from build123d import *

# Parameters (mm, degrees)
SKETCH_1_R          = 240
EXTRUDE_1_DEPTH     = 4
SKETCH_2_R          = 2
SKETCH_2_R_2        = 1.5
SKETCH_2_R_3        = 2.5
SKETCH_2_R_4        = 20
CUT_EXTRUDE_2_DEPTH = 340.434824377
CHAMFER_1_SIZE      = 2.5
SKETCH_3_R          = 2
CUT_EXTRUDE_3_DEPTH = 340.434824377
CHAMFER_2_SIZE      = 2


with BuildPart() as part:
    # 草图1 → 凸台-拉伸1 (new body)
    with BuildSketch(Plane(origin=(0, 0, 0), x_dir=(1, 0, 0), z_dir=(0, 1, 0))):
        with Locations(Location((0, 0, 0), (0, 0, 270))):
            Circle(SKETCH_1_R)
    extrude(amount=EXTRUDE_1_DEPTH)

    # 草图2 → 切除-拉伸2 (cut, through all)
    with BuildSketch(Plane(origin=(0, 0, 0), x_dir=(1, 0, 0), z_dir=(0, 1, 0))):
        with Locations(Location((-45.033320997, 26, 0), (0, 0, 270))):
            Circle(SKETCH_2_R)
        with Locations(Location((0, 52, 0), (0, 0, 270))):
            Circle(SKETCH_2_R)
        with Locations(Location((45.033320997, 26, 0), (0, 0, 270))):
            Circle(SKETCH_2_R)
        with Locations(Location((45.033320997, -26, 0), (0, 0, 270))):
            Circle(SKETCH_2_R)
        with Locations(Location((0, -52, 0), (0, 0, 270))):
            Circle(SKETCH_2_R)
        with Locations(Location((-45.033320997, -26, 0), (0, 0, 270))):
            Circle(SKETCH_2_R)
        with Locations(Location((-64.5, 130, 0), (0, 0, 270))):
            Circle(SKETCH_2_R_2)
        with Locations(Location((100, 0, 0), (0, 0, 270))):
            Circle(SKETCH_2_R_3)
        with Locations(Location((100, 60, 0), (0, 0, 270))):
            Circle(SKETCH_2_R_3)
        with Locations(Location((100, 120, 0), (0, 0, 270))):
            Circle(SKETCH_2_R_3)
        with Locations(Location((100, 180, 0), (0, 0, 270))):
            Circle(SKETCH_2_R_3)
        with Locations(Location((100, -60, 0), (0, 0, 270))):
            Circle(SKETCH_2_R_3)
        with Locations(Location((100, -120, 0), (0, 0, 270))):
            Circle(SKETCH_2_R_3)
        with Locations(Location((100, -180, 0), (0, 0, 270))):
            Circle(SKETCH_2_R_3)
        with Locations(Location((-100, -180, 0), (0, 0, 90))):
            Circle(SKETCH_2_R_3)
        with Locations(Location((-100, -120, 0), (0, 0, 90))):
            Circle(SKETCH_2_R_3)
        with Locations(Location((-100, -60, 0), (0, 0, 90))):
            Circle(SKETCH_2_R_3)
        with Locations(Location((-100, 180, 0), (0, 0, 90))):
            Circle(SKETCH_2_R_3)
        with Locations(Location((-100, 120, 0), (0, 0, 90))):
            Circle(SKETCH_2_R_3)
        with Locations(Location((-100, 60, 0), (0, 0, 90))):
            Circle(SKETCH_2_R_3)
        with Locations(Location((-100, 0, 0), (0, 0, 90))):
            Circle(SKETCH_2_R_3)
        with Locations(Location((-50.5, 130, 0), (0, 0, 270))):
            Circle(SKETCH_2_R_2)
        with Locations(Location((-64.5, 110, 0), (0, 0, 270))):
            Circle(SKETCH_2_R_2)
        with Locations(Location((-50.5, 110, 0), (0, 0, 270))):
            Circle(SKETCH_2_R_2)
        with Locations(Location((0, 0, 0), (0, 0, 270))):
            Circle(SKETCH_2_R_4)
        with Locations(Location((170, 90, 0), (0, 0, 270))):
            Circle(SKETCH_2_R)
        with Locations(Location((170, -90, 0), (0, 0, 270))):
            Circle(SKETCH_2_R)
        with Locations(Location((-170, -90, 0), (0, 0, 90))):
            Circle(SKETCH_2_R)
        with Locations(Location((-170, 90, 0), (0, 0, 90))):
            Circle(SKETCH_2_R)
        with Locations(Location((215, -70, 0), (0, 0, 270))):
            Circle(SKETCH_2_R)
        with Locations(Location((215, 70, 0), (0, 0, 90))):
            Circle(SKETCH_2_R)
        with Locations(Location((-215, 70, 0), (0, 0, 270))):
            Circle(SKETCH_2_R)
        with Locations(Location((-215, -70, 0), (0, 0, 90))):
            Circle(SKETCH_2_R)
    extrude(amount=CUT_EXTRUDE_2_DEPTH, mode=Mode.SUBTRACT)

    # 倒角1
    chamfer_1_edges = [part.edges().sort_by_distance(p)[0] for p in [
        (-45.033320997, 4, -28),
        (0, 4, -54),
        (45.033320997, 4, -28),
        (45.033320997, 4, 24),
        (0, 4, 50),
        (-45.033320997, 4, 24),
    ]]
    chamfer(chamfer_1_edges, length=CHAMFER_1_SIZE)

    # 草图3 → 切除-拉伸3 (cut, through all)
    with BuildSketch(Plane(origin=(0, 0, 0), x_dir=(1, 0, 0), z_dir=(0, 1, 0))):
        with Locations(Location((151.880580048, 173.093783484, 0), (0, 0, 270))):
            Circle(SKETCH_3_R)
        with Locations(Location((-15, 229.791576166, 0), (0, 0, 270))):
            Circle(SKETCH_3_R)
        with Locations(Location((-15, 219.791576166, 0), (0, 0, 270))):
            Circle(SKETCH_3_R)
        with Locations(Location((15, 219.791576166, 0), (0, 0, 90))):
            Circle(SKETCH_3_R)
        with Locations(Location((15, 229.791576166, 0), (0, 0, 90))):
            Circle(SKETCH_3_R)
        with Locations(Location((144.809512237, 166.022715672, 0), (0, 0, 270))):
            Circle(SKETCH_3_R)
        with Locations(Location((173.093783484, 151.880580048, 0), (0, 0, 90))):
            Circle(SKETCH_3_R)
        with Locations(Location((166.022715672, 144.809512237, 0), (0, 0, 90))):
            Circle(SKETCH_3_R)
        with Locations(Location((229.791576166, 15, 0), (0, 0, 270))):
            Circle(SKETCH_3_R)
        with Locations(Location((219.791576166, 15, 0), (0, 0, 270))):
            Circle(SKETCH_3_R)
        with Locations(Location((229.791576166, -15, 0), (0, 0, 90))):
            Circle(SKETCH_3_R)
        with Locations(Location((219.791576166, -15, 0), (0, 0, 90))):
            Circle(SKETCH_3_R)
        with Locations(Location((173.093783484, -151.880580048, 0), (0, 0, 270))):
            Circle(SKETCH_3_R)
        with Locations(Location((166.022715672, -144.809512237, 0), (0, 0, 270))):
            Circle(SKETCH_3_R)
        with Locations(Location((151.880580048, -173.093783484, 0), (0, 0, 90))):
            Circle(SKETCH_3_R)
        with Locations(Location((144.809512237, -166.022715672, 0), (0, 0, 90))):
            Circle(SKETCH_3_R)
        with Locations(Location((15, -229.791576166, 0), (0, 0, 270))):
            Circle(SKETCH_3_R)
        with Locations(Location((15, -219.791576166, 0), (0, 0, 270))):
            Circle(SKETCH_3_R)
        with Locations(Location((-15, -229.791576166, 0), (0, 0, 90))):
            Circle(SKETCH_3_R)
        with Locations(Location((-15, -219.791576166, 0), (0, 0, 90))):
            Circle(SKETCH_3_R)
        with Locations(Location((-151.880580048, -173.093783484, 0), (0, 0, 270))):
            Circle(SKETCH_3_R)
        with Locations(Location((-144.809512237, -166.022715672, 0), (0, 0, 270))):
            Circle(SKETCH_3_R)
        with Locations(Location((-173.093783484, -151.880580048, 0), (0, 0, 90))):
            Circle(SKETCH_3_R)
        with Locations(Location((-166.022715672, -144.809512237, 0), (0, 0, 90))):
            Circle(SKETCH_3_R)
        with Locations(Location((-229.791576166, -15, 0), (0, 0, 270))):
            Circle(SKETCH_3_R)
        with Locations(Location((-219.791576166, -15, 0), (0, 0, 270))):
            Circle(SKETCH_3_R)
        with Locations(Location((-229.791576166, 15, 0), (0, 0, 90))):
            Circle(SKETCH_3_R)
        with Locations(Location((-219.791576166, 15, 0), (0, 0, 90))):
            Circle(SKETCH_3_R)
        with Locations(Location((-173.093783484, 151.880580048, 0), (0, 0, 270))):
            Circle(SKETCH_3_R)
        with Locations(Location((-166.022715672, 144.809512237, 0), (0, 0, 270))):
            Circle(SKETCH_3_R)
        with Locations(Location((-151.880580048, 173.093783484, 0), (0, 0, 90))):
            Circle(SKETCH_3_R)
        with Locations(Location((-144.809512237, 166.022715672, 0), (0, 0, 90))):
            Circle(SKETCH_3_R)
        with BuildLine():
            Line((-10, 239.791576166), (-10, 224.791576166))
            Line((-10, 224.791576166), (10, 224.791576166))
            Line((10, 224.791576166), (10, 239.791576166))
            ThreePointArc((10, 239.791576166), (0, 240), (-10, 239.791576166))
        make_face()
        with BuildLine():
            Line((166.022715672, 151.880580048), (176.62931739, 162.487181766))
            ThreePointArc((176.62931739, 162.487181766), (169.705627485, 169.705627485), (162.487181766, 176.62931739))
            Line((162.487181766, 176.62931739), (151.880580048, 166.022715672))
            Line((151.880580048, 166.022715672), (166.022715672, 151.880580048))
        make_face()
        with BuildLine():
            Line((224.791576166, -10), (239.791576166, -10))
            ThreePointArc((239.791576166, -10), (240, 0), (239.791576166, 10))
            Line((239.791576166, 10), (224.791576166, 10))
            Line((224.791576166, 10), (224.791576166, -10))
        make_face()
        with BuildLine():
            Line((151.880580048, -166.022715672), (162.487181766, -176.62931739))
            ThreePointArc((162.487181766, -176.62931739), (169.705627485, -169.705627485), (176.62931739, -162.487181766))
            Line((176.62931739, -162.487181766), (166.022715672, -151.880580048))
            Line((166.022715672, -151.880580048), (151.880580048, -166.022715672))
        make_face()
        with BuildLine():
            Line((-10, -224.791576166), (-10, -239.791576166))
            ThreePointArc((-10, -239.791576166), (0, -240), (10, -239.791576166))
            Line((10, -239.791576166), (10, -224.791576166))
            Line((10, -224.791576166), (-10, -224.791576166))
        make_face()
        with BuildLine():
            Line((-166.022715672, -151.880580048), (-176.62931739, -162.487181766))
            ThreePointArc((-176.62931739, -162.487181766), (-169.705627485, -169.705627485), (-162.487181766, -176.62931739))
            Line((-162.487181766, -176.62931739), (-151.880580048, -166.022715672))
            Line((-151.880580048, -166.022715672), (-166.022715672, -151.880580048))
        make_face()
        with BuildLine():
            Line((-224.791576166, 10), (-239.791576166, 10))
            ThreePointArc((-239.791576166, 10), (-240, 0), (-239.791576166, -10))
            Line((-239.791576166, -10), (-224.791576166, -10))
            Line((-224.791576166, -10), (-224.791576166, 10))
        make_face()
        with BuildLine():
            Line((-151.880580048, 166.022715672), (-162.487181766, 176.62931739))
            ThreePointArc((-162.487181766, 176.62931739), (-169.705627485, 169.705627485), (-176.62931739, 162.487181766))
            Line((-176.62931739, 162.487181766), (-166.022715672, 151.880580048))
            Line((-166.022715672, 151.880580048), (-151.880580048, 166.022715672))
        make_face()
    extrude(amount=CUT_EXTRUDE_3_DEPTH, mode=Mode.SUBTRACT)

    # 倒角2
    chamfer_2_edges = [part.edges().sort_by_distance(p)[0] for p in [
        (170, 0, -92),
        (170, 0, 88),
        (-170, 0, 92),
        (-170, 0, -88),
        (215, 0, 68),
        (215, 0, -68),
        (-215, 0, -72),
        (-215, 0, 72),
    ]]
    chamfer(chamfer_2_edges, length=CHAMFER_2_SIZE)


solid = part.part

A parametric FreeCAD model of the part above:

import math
import FreeCAD as App
import Part
import Sketcher
from FreeCAD import Vector


def edges_at(feature, points):
    """Names of the edges that pass closest to the given points."""
    edges = feature.Shape.Edges
    near = lambda p: min(range(len(edges)), key=lambda i: edges[i].distToShape(Part.Vertex(*p))[0])
    return sorted({f"Edge{near(p) + 1}" for p in points})

doc = App.newDocument("Part")
body = doc.addObject("PartDesign::Body", "Body")

# Sketch on XZ plane
sketch1 = body.newObject("Sketcher::SketchObject", "Sketch")
sketch1.AttachmentSupport = (doc.getObject("XZ_Plane"), [""])
sketch1.MapMode = "FlatFace"
sketch1.addGeometry(Part.Circle(Vector(0, 0, 0), Vector(0, 0, 1), 240), False)
sketch1.addConstraint(Sketcher.Constraint("Coincident", 0, 3, -1, 1))
sketch1.addConstraint(Sketcher.Constraint("Diameter", 0, 480.0))
pad1 = body.newObject("PartDesign::Pad", "Pad")
pad1.Profile = sketch1
pad1.Length = 4
pad1.Reversed = True

# Sketch on XZ plane
sketch2 = body.newObject("Sketcher::SketchObject", "Sketch001")
sketch2.AttachmentSupport = (doc.getObject("XZ_Plane"), [""])
sketch2.MapMode = "FlatFace"
sketch2.addGeometry(Part.Circle(Vector(-45, -26, 0), Vector(0, 0, 1), 2), False)
sketch2.addGeometry(Part.Circle(Vector(0, -52, 0), Vector(0, 0, 1), 2), False)
sketch2.addGeometry(Part.Circle(Vector(45, -26, 0), Vector(0, 0, 1), 2), False)
sketch2.addGeometry(Part.Circle(Vector(45, 26, 0), Vector(0, 0, 1), 2), False)
sketch2.addGeometry(Part.Circle(Vector(0, 52, 0), Vector(0, 0, 1), 2), False)
sketch2.addGeometry(Part.Circle(Vector(-45, 26, 0), Vector(0, 0, 1), 2), False)
sketch2.addGeometry(Part.Circle(Vector(-64.5, -130, 0), Vector(0, 0, 1), 1.5), False)
sketch2.addGeometry(Part.Circle(Vector(100, 0, 0), Vector(0, 0, 1), 2.5), False)
sketch2.addGeometry(Part.Circle(Vector(100, -60, 0), Vector(0, 0, 1), 2.5), False)
sketch2.addGeometry(Part.Circle(Vector(100, -120, 0), Vector(0, 0, 1), 2.5), False)
sketch2.addGeometry(Part.Circle(Vector(100, -180, 0), Vector(0, 0, 1), 2.5), False)
sketch2.addGeometry(Part.Circle(Vector(100, 60, 0), Vector(0, 0, 1), 2.5), False)
sketch2.addGeometry(Part.Circle(Vector(100, 120, 0), Vector(0, 0, 1), 2.5), False)
sketch2.addGeometry(Part.Circle(Vector(100, 180, 0), Vector(0, 0, 1), 2.5), False)
sketch2.addGeometry(Part.Circle(Vector(-100, 180, 0), Vector(0, 0, 1), 2.5), False)
sketch2.addGeometry(Part.Circle(Vector(-100, 120, 0), Vector(0, 0, 1), 2.5), False)
sketch2.addGeometry(Part.Circle(Vector(-100, 60, 0), Vector(0, 0, 1), 2.5), False)
sketch2.addGeometry(Part.Circle(Vector(-100, -180, 0), Vector(0, 0, 1), 2.5), False)
sketch2.addGeometry(Part.Circle(Vector(-100, -120, 0), Vector(0, 0, 1), 2.5), False)
sketch2.addGeometry(Part.Circle(Vector(-100, -60, 0), Vector(0, 0, 1), 2.5), False)
sketch2.addGeometry(Part.Circle(Vector(-100, 0, 0), Vector(0, 0, 1), 2.5), False)
sketch2.addGeometry(Part.Circle(Vector(-50.5, -130, 0), Vector(0, 0, 1), 1.5), False)
sketch2.addGeometry(Part.Circle(Vector(-64.5, -110, 0), Vector(0, 0, 1), 1.5), False)
sketch2.addGeometry(Part.Circle(Vector(-50.5, -110, 0), Vector(0, 0, 1), 1.5), False)
sketch2.addGeometry(Part.Circle(Vector(0, 0, 0), Vector(0, 0, 1), 20), False)
sketch2.addGeometry(Part.Circle(Vector(170, -90, 0), Vector(0, 0, 1), 2), False)
sketch2.addGeometry(Part.Circle(Vector(170, 90, 0), Vector(0, 0, 1), 2), False)
sketch2.addGeometry(Part.Circle(Vector(-170, 90, 0), Vector(0, 0, 1), 2), False)
sketch2.addGeometry(Part.Circle(Vector(-170, -90, 0), Vector(0, 0, 1), 2), False)
sketch2.addGeometry(Part.Circle(Vector(215, 70, 0), Vector(0, 0, 1), 2), False)
sketch2.addGeometry(Part.Circle(Vector(215, -70, 0), Vector(0, 0, 1), 2), False)
sketch2.addGeometry(Part.Circle(Vector(-215, -70, 0), Vector(0, 0, 1), 2), False)
sketch2.addGeometry(Part.Circle(Vector(-215, 70, 0), Vector(0, 0, 1), 2), False)
sketch2.addConstraint(Sketcher.Constraint("Coincident", 24, 3, -1, 1))
sketch2.addConstraint(Sketcher.Constraint("Equal", 0, 1))
sketch2.addConstraint(Sketcher.Constraint("Equal", 1, 2))
sketch2.addConstraint(Sketcher.Constraint("Equal", 2, 3))
sketch2.addConstraint(Sketcher.Constraint("Equal", 3, 4))
sketch2.addConstraint(Sketcher.Constraint("Equal", 4, 5))
sketch2.addConstraint(Sketcher.Constraint("Equal", 7, 8))
sketch2.addConstraint(Sketcher.Constraint("Equal", 8, 9))
sketch2.addConstraint(Sketcher.Constraint("Equal", 9, 10))
sketch2.addConstraint(Sketcher.Constraint("Equal", 10, 11))
sketch2.addConstraint(Sketcher.Constraint("Equal", 11, 12))
sketch2.addConstraint(Sketcher.Constraint("Equal", 12, 13))
sketch2.addConstraint(Sketcher.Constraint("Equal", 13, 14))
sketch2.addConstraint(Sketcher.Constraint("Equal", 14, 15))
sketch2.addConstraint(Sketcher.Constraint("Equal", 15, 16))
sketch2.addConstraint(Sketcher.Constraint("Equal", 16, 17))
sketch2.addConstraint(Sketcher.Constraint("Equal", 17, 18))
sketch2.addConstraint(Sketcher.Constraint("Equal", 18, 19))
sketch2.addConstraint(Sketcher.Constraint("Equal", 19, 20))
sketch2.addConstraint(Sketcher.Constraint("Equal", 6, 21))
sketch2.addConstraint(Sketcher.Constraint("Equal", 21, 22))
sketch2.addConstraint(Sketcher.Constraint("Equal", 22, 23))
sketch2.addConstraint(Sketcher.Constraint("Equal", 5, 25))
sketch2.addConstraint(Sketcher.Constraint("Equal", 25, 26))
sketch2.addConstraint(Sketcher.Constraint("Equal", 26, 27))
sketch2.addConstraint(Sketcher.Constraint("Equal", 27, 28))
sketch2.addConstraint(Sketcher.Constraint("Equal", 28, 29))
sketch2.addConstraint(Sketcher.Constraint("Equal", 29, 30))
sketch2.addConstraint(Sketcher.Constraint("Equal", 30, 31))
sketch2.addConstraint(Sketcher.Constraint("Equal", 31, 32))
sketch2.addConstraint(Sketcher.Constraint("Symmetric", 0, 3, 3, 3, -1, 1))
sketch2.addConstraint(Sketcher.Constraint("Symmetric", 1, 3, 4, 3, -1, 1))
sketch2.addConstraint(Sketcher.Constraint("Symmetric", 2, 3, 5, 3, -1, 1))
sketch2.addConstraint(Sketcher.Constraint("Symmetric", 10, 3, 14, 3, -1, 1))
sketch2.addConstraint(Sketcher.Constraint("Symmetric", 9, 3, 15, 3, -1, 1))
sketch2.addConstraint(Sketcher.Constraint("Symmetric", 8, 3, 16, 3, -1, 1))
sketch2.addConstraint(Sketcher.Constraint("Symmetric", 13, 3, 17, 3, -1, 1))
sketch2.addConstraint(Sketcher.Constraint("Symmetric", 12, 3, 18, 3, -1, 1))
sketch2.addConstraint(Sketcher.Constraint("Symmetric", 11, 3, 19, 3, -1, 1))
sketch2.addConstraint(Sketcher.Constraint("Symmetric", 7, 3, 20, 3, -1, 1))
sketch2.addConstraint(Sketcher.Constraint("Symmetric", 25, 3, 27, 3, -1, 1))
sketch2.addConstraint(Sketcher.Constraint("Symmetric", 26, 3, 28, 3, -1, 1))
sketch2.addConstraint(Sketcher.Constraint("Symmetric", 29, 3, 31, 3, -1, 1))
sketch2.addConstraint(Sketcher.Constraint("Symmetric", 30, 3, 32, 3, -1, 1))
sketch2.addConstraint(Sketcher.Constraint("Symmetric", 0, 3, 2, 3, -2))
sketch2.addConstraint(Sketcher.Constraint("Symmetric", 13, 3, 14, 3, -2))
sketch2.addConstraint(Sketcher.Constraint("Symmetric", 12, 3, 15, 3, -2))
sketch2.addConstraint(Sketcher.Constraint("Symmetric", 11, 3, 16, 3, -2))
sketch2.addConstraint(Sketcher.Constraint("Symmetric", 26, 3, 27, 3, -2))
sketch2.addConstraint(Sketcher.Constraint("Symmetric", 30, 3, 31, 3, -2))
sketch2.addConstraint(Sketcher.Constraint("PointOnObject", 1, 3, -2))
sketch2.addConstraint(Sketcher.Constraint("PointOnObject", 7, 3, -1))
sketch2.addConstraint(Sketcher.Constraint("Horizontal", 6, 3, 21, 3))
sketch2.addConstraint(Sketcher.Constraint("Horizontal", 22, 3, 23, 3))
sketch2.addConstraint(Sketcher.Constraint("Vertical", 7, 3, 8, 3))
sketch2.addConstraint(Sketcher.Constraint("Vertical", 8, 3, 9, 3))
sketch2.addConstraint(Sketcher.Constraint("Vertical", 9, 3, 10, 3))
sketch2.addConstraint(Sketcher.Constraint("Vertical", 6, 3, 22, 3))
sketch2.addConstraint(Sketcher.Constraint("Vertical", 21, 3, 23, 3))
sketch2.addConstraint(Sketcher.Constraint("Diameter", 0, 4.0))
sketch2.addConstraint(Sketcher.Constraint("Diameter", 6, 3.0))
sketch2.addConstraint(Sketcher.Constraint("Diameter", 7, 5.0))
sketch2.addConstraint(Sketcher.Constraint("Diameter", 24, 40.0))
sketch2.addConstraint(Sketcher.Constraint("DistanceY", 0, 3, -1, 1, 26.0))
sketch2.addConstraint(Sketcher.Constraint("DistanceY", 1, 3, -1, 1, 52.0))
sketch2.addConstraint(Sketcher.Constraint("DistanceY", 6, 3, -1, 1, 130.0))
sketch2.addConstraint(Sketcher.Constraint("DistanceX", -1, 1, 7, 3, 100.0))
sketch2.addConstraint(Sketcher.Constraint("DistanceY", 8, 3, -1, 1, 60.0))
sketch2.addConstraint(Sketcher.Constraint("DistanceY", 9, 3, -1, 1, 120.0))
sketch2.addConstraint(Sketcher.Constraint("DistanceY", 10, 3, -1, 1, 180.0))
sketch2.addConstraint(Sketcher.Constraint("DistanceY", 22, 3, -1, 1, 110.0))
sketch2.addConstraint(Sketcher.Constraint("DistanceX", -1, 1, 25, 3, 170.0))
sketch2.addConstraint(Sketcher.Constraint("DistanceY", 25, 3, -1, 1, 90.0))
sketch2.addConstraint(Sketcher.Constraint("DistanceX", -1, 1, 29, 3, 215.0))
sketch2.addConstraint(Sketcher.Constraint("DistanceY", -1, 1, 29, 3, 70.0))
sketch2.addConstraint(Sketcher.Constraint("DistanceX", 6, 3, 21, 3, 14.0))
sketch2.addConstraint(Sketcher.Constraint("DistanceX", 6, 3, -1, 1, 64.5))
sketch2.addConstraint(Sketcher.Constraint("DistanceX", 0, 3, -1, 1, 45.033321))
pocket1 = body.newObject("PartDesign::Pocket", "Pocket")
pocket1.Profile = sketch2
pocket1.Type = "ThroughAll"
doc.recompute()

chamfer = body.newObject("PartDesign::Chamfer", "Chamfer")
chamfer.Base = (pocket1, edges_at(pocket1, [
    (-45.033, 4, -28),
    (0, 4, -54),
    (45.033, 4, -28),
    (45.033, 4, 24),
    (0, 4, 50),
    (-45.033, 4, 24),
]))
chamfer.Size = 2.5

# Sketch on XZ plane
sketch3 = body.newObject("Sketcher::SketchObject", "Sketch002")
sketch3.AttachmentSupport = (doc.getObject("XZ_Plane"), [""])
sketch3.MapMode = "FlatFace"
sketch3.addGeometry(Part.Circle(Vector(151.9, -173.1, 0), Vector(0, 0, 1), 2), False)
sketch3.addGeometry(Part.Circle(Vector(-15, -229.8, 0), Vector(0, 0, 1), 2), False)
sketch3.addGeometry(Part.Circle(Vector(-15, -219.8, 0), Vector(0, 0, 1), 2), False)
sketch3.addGeometry(Part.Circle(Vector(15, -219.8, 0), Vector(0, 0, 1), 2), False)
sketch3.addGeometry(Part.Circle(Vector(15, -229.8, 0), Vector(0, 0, 1), 2), False)
sketch3.addGeometry(Part.Circle(Vector(144.8, -166, 0), Vector(0, 0, 1), 2), False)
sketch3.addGeometry(Part.Circle(Vector(173.1, -151.9, 0), Vector(0, 0, 1), 2), False)
sketch3.addGeometry(Part.Circle(Vector(166, -144.8, 0), Vector(0, 0, 1), 2), False)
sketch3.addGeometry(Part.Circle(Vector(229.8, -15, 0), Vector(0, 0, 1), 2), False)
sketch3.addGeometry(Part.Circle(Vector(219.8, -15, 0), Vector(0, 0, 1), 2), False)
sketch3.addGeometry(Part.Circle(Vector(229.8, 15, 0), Vector(0, 0, 1), 2), False)
sketch3.addGeometry(Part.Circle(Vector(219.8, 15, 0), Vector(0, 0, 1), 2), False)
sketch3.addGeometry(Part.Circle(Vector(173.1, 151.9, 0), Vector(0, 0, 1), 2), False)
sketch3.addGeometry(Part.Circle(Vector(166, 144.8, 0), Vector(0, 0, 1), 2), False)
sketch3.addGeometry(Part.Circle(Vector(151.9, 173.1, 0), Vector(0, 0, 1), 2), False)
sketch3.addGeometry(Part.Circle(Vector(144.8, 166, 0), Vector(0, 0, 1), 2), False)
sketch3.addGeometry(Part.Circle(Vector(15, 229.8, 0), Vector(0, 0, 1), 2), False)
sketch3.addGeometry(Part.Circle(Vector(15, 219.8, 0), Vector(0, 0, 1), 2), False)
sketch3.addGeometry(Part.Circle(Vector(-15, 229.8, 0), Vector(0, 0, 1), 2), False)
sketch3.addGeometry(Part.Circle(Vector(-15, 219.8, 0), Vector(0, 0, 1), 2), False)
sketch3.addGeometry(Part.Circle(Vector(-151.9, 173.1, 0), Vector(0, 0, 1), 2), False)
sketch3.addGeometry(Part.Circle(Vector(-144.8, 166, 0), Vector(0, 0, 1), 2), False)
sketch3.addGeometry(Part.Circle(Vector(-173.1, 151.9, 0), Vector(0, 0, 1), 2), False)
sketch3.addGeometry(Part.Circle(Vector(-166, 144.8, 0), Vector(0, 0, 1), 2), False)
sketch3.addGeometry(Part.Circle(Vector(-229.8, 15, 0), Vector(0, 0, 1), 2), False)
sketch3.addGeometry(Part.Circle(Vector(-219.8, 15, 0), Vector(0, 0, 1), 2), False)
sketch3.addGeometry(Part.Circle(Vector(-229.8, -15, 0), Vector(0, 0, 1), 2), False)
sketch3.addGeometry(Part.Circle(Vector(-219.8, -15, 0), Vector(0, 0, 1), 2), False)
sketch3.addGeometry(Part.Circle(Vector(-173.1, -151.9, 0), Vector(0, 0, 1), 2), False)
sketch3.addGeometry(Part.Circle(Vector(-166, -144.8, 0), Vector(0, 0, 1), 2), False)
sketch3.addGeometry(Part.Circle(Vector(-151.9, -173.1, 0), Vector(0, 0, 1), 2), False)
sketch3.addGeometry(Part.Circle(Vector(-144.8, -166, 0), Vector(0, 0, 1), 2), False)
sketch3.addGeometry(Part.LineSegment(Vector(-10, -239.8, 0), Vector(-10, -224.8, 0)), False)
sketch3.addGeometry(Part.LineSegment(Vector(-10, -224.8, 0), Vector(10, -224.8, 0)), False)
sketch3.addGeometry(Part.LineSegment(Vector(10, -224.8, 0), Vector(10, -239.8, 0)), False)
sketch3.addGeometry(Part.ArcOfCircle(Part.Circle(Vector(0, 0, 0), Vector(0, 0, 1), 240), math.radians(-92.39), math.radians(-87.61)), False)
sketch3.addGeometry(Part.LineSegment(Vector(166, -151.9, 0), Vector(176.6, -162.5, 0)), False)
sketch3.addGeometry(Part.ArcOfCircle(Part.Circle(Vector(0, 0, 0), Vector(0, 0, 1), 240), math.radians(-47.39), math.radians(-42.61)), False)
sketch3.addGeometry(Part.LineSegment(Vector(162.5, -176.6, 0), Vector(151.9, -166, 0)), False)
sketch3.addGeometry(Part.LineSegment(Vector(151.9, -166, 0), Vector(166, -151.9, 0)), False)
sketch3.addGeometry(Part.LineSegment(Vector(224.8, 10, 0), Vector(239.8, 10, 0)), False)
sketch3.addGeometry(Part.ArcOfCircle(Part.Circle(Vector(0, 0, 0), Vector(0, 0, 1), 240), math.radians(-2.39), math.radians(2.39)), False)
sketch3.addGeometry(Part.LineSegment(Vector(239.8, -10, 0), Vector(224.8, -10, 0)), False)
sketch3.addGeometry(Part.LineSegment(Vector(224.8, -10, 0), Vector(224.8, 10, 0)), False)
sketch3.addGeometry(Part.LineSegment(Vector(151.9, 166, 0), Vector(162.5, 176.6, 0)), False)
sketch3.addGeometry(Part.ArcOfCircle(Part.Circle(Vector(0, 0, 0), Vector(0, 0, 1), 240), math.radians(42.61), math.radians(47.39)), False)
sketch3.addGeometry(Part.LineSegment(Vector(176.6, 162.5, 0), Vector(166, 151.9, 0)), False)
sketch3.addGeometry(Part.LineSegment(Vector(166, 151.9, 0), Vector(151.9, 166, 0)), False)
sketch3.addGeometry(Part.LineSegment(Vector(-10, 224.8, 0), Vector(-10, 239.8, 0)), False)
sketch3.addGeometry(Part.ArcOfCircle(Part.Circle(Vector(0, 0, 0), Vector(0, 0, 1), 240), math.radians(87.61), math.radians(92.39)), False)
sketch3.addGeometry(Part.LineSegment(Vector(10, 239.8, 0), Vector(10, 224.8, 0)), False)
sketch3.addGeometry(Part.LineSegment(Vector(10, 224.8, 0), Vector(-10, 224.8, 0)), False)
sketch3.addGeometry(Part.LineSegment(Vector(-166, 151.9, 0), Vector(-176.6, 162.5, 0)), False)
sketch3.addGeometry(Part.ArcOfCircle(Part.Circle(Vector(0, 0, 0), Vector(0, 0, 1), 240), math.radians(132.61), math.radians(137.39)), False)
sketch3.addGeometry(Part.LineSegment(Vector(-162.5, 176.6, 0), Vector(-151.9, 166, 0)), False)
sketch3.addGeometry(Part.LineSegment(Vector(-151.9, 166, 0), Vector(-166, 151.9, 0)), False)
sketch3.addGeometry(Part.LineSegment(Vector(-224.8, -10, 0), Vector(-239.8, -10, 0)), False)
sketch3.addGeometry(Part.ArcOfCircle(Part.Circle(Vector(0, 0, 0), Vector(0, 0, 1), 240), math.radians(177.61), math.radians(182.39)), False)
sketch3.addGeometry(Part.LineSegment(Vector(-239.8, 10, 0), Vector(-224.8, 10, 0)), False)
sketch3.addGeometry(Part.LineSegment(Vector(-224.8, 10, 0), Vector(-224.8, -10, 0)), False)
sketch3.addGeometry(Part.LineSegment(Vector(-151.9, -166, 0), Vector(-162.5, -176.6, 0)), False)
sketch3.addGeometry(Part.ArcOfCircle(Part.Circle(Vector(0, 0, 0), Vector(0, 0, 1), 240), math.radians(-137.39), math.radians(-132.61)), False)
sketch3.addGeometry(Part.LineSegment(Vector(-176.6, -162.5, 0), Vector(-166, -151.9, 0)), False)
sketch3.addGeometry(Part.LineSegment(Vector(-166, -151.9, 0), Vector(-151.9, -166, 0)), False)
sketch3.addConstraint(Sketcher.Constraint("Coincident", 32, 2, 33, 1))
sketch3.addConstraint(Sketcher.Constraint("Coincident", 33, 2, 34, 1))
sketch3.addConstraint(Sketcher.Constraint("Coincident", 34, 2, 35, 2))
sketch3.addConstraint(Sketcher.Constraint("Coincident", 35, 1, 32, 1))
sketch3.addConstraint(Sketcher.Constraint("Coincident", 36, 2, 37, 2))
sketch3.addConstraint(Sketcher.Constraint("Coincident", 37, 1, 38, 1))
sketch3.addConstraint(Sketcher.Constraint("Coincident", 38, 2, 39, 1))
sketch3.addConstraint(Sketcher.Constraint("Coincident", 39, 2, 36, 1))
sketch3.addConstraint(Sketcher.Constraint("Coincident", 40, 2, 41, 2))
sketch3.addConstraint(Sketcher.Constraint("Coincident", 41, 1, 42, 1))
sketch3.addConstraint(Sketcher.Constraint("Coincident", 42, 2, 43, 1))
sketch3.addConstraint(Sketcher.Constraint("Coincident", 43, 2, 40, 1))
sketch3.addConstraint(Sketcher.Constraint("Coincident", 44, 2, 45, 2))
sketch3.addConstraint(Sketcher.Constraint("Coincident", 45, 1, 46, 1))
sketch3.addConstraint(Sketcher.Constraint("Coincident", 46, 2, 47, 1))
sketch3.addConstraint(Sketcher.Constraint("Coincident", 47, 2, 44, 1))
sketch3.addConstraint(Sketcher.Constraint("Coincident", 48, 2, 49, 2))
sketch3.addConstraint(Sketcher.Constraint("Coincident", 49, 1, 50, 1))
sketch3.addConstraint(Sketcher.Constraint("Coincident", 50, 2, 51, 1))
sketch3.addConstraint(Sketcher.Constraint("Coincident", 51, 2, 48, 1))
sketch3.addConstraint(Sketcher.Constraint("Coincident", 52, 2, 53, 2))
sketch3.addConstraint(Sketcher.Constraint("Coincident", 53, 1, 54, 1))
sketch3.addConstraint(Sketcher.Constraint("Coincident", 54, 2, 55, 1))
sketch3.addConstraint(Sketcher.Constraint("Coincident", 55, 2, 52, 1))
sketch3.addConstraint(Sketcher.Constraint("Coincident", 56, 2, 57, 2))
sketch3.addConstraint(Sketcher.Constraint("Coincident", 57, 1, 58, 1))
sketch3.addConstraint(Sketcher.Constraint("Coincident", 58, 2, 59, 1))
sketch3.addConstraint(Sketcher.Constraint("Coincident", 59, 2, 56, 1))
sketch3.addConstraint(Sketcher.Constraint("Coincident", 60, 2, 61, 2))
sketch3.addConstraint(Sketcher.Constraint("Coincident", 61, 1, 62, 1))
sketch3.addConstraint(Sketcher.Constraint("Coincident", 62, 2, 63, 1))
sketch3.addConstraint(Sketcher.Constraint("Coincident", 63, 2, 60, 1))
sketch3.addConstraint(Sketcher.Constraint("Vertical", 32))
sketch3.addConstraint(Sketcher.Constraint("Horizontal", 33))
sketch3.addConstraint(Sketcher.Constraint("Vertical", 34))
sketch3.addConstraint(Sketcher.Constraint("Horizontal", 40))
sketch3.addConstraint(Sketcher.Constraint("Horizontal", 42))
sketch3.addConstraint(Sketcher.Constraint("Vertical", 43))
sketch3.addConstraint(Sketcher.Constraint("Vertical", 48))
sketch3.addConstraint(Sketcher.Constraint("Vertical", 50))
sketch3.addConstraint(Sketcher.Constraint("Horizontal", 51))
sketch3.addConstraint(Sketcher.Constraint("Horizontal", 56))
sketch3.addConstraint(Sketcher.Constraint("Horizontal", 58))
sketch3.addConstraint(Sketcher.Constraint("Vertical", 59))
sketch3.addConstraint(Sketcher.Constraint("Coincident", 35, 3, -1, 1))
sketch3.addConstraint(Sketcher.Constraint("Coincident", 37, 3, -1, 1))
sketch3.addConstraint(Sketcher.Constraint("Coincident", 41, 3, -1, 1))
sketch3.addConstraint(Sketcher.Constraint("Coincident", 45, 3, -1, 1))
sketch3.addConstraint(Sketcher.Constraint("Coincident", 49, 3, -1, 1))
sketch3.addConstraint(Sketcher.Constraint("Coincident", 53, 3, -1, 1))
sketch3.addConstraint(Sketcher.Constraint("Coincident", 57, 3, -1, 1))
sketch3.addConstraint(Sketcher.Constraint("Coincident", 61, 3, -1, 1))
sketch3.addConstraint(Sketcher.Constraint("Equal", 0, 1))
sketch3.addConstraint(Sketcher.Constraint("Equal", 1, 2))
sketch3.addConstraint(Sketcher.Constraint("Equal", 2, 3))
sketch3.addConstraint(Sketcher.Constraint("Equal", 3, 4))
sketch3.addConstraint(Sketcher.Constraint("Equal", 4, 5))
sketch3.addConstraint(Sketcher.Constraint("Equal", 5, 6))
sketch3.addConstraint(Sketcher.Constraint("Equal", 6, 7))
sketch3.addConstraint(Sketcher.Constraint("Equal", 7, 8))
sketch3.addConstraint(Sketcher.Constraint("Equal", 8, 9))
sketch3.addConstraint(Sketcher.Constraint("Equal", 9, 10))
sketch3.addConstraint(Sketcher.Constraint("Equal", 10, 11))
sketch3.addConstraint(Sketcher.Constraint("Equal", 11, 12))
sketch3.addConstraint(Sketcher.Constraint("Equal", 12, 13))
sketch3.addConstraint(Sketcher.Constraint("Equal", 13, 14))
sketch3.addConstraint(Sketcher.Constraint("Equal", 14, 15))
sketch3.addConstraint(Sketcher.Constraint("Equal", 15, 16))
sketch3.addConstraint(Sketcher.Constraint("Equal", 16, 17))
sketch3.addConstraint(Sketcher.Constraint("Equal", 17, 18))
sketch3.addConstraint(Sketcher.Constraint("Equal", 18, 19))
sketch3.addConstraint(Sketcher.Constraint("Equal", 19, 20))
sketch3.addConstraint(Sketcher.Constraint("Equal", 20, 21))
sketch3.addConstraint(Sketcher.Constraint("Equal", 21, 22))
sketch3.addConstraint(Sketcher.Constraint("Equal", 22, 23))
sketch3.addConstraint(Sketcher.Constraint("Equal", 23, 24))
sketch3.addConstraint(Sketcher.Constraint("Equal", 24, 25))
sketch3.addConstraint(Sketcher.Constraint("Equal", 25, 26))
sketch3.addConstraint(Sketcher.Constraint("Equal", 26, 27))
sketch3.addConstraint(Sketcher.Constraint("Equal", 27, 28))
sketch3.addConstraint(Sketcher.Constraint("Equal", 28, 29))
sketch3.addConstraint(Sketcher.Constraint("Equal", 29, 30))
sketch3.addConstraint(Sketcher.Constraint("Equal", 30, 31))
sketch3.addConstraint(Sketcher.Constraint("Equal", 35, 37))
sketch3.addConstraint(Sketcher.Constraint("Equal", 37, 41))
sketch3.addConstraint(Sketcher.Constraint("Equal", 41, 45))
sketch3.addConstraint(Sketcher.Constraint("Equal", 45, 49))
sketch3.addConstraint(Sketcher.Constraint("Equal", 49, 53))
sketch3.addConstraint(Sketcher.Constraint("Equal", 53, 57))
sketch3.addConstraint(Sketcher.Constraint("Equal", 57, 61))
sketch3.addConstraint(Sketcher.Constraint("Symmetric", 1, 3, 16, 3, -1, 1))
sketch3.addConstraint(Sketcher.Constraint("Symmetric", 2, 3, 17, 3, -1, 1))
sketch3.addConstraint(Sketcher.Constraint("Symmetric", 4, 3, 18, 3, -1, 1))
sketch3.addConstraint(Sketcher.Constraint("Symmetric", 3, 3, 19, 3, -1, 1))
sketch3.addConstraint(Sketcher.Constraint("Symmetric", 0, 3, 20, 3, -1, 1))
sketch3.addConstraint(Sketcher.Constraint("Symmetric", 5, 3, 21, 3, -1, 1))
sketch3.addConstraint(Sketcher.Constraint("Symmetric", 6, 3, 22, 3, -1, 1))
sketch3.addConstraint(Sketcher.Constraint("Symmetric", 7, 3, 23, 3, -1, 1))
sketch3.addConstraint(Sketcher.Constraint("Symmetric", 8, 3, 24, 3, -1, 1))
sketch3.addConstraint(Sketcher.Constraint("Symmetric", 9, 3, 25, 3, -1, 1))
sketch3.addConstraint(Sketcher.Constraint("Symmetric", 10, 3, 26, 3, -1, 1))
sketch3.addConstraint(Sketcher.Constraint("Symmetric", 11, 3, 27, 3, -1, 1))
sketch3.addConstraint(Sketcher.Constraint("Symmetric", 12, 3, 28, 3, -1, 1))
sketch3.addConstraint(Sketcher.Constraint("Symmetric", 13, 3, 29, 3, -1, 1))
sketch3.addConstraint(Sketcher.Constraint("Symmetric", 14, 3, 30, 3, -1, 1))
sketch3.addConstraint(Sketcher.Constraint("Symmetric", 15, 3, 31, 3, -1, 1))
sketch3.addConstraint(Sketcher.Constraint("Symmetric", 32, 2, 50, 2, -1, 1))
sketch3.addConstraint(Sketcher.Constraint("Symmetric", 38, 2, 54, 2, -1, 1))
sketch3.addConstraint(Sketcher.Constraint("Symmetric", 39, 2, 55, 2, -1, 1))
sketch3.addConstraint(Sketcher.Constraint("Symmetric", 42, 2, 58, 2, -1, 1))
sketch3.addConstraint(Sketcher.Constraint("Symmetric", 46, 2, 62, 2, -1, 1))
sketch3.addConstraint(Sketcher.Constraint("Symmetric", 47, 2, 63, 2, -1, 1))
sketch3.addConstraint(Sketcher.Constraint("Symmetric", 2, 3, 3, 3, -2))
sketch3.addConstraint(Sketcher.Constraint("Symmetric", 1, 3, 4, 3, -2))
sketch3.addConstraint(Sketcher.Constraint("Symmetric", 14, 3, 20, 3, -2))
sketch3.addConstraint(Sketcher.Constraint("Symmetric", 15, 3, 21, 3, -2))
sketch3.addConstraint(Sketcher.Constraint("Symmetric", 12, 3, 22, 3, -2))
sketch3.addConstraint(Sketcher.Constraint("Symmetric", 13, 3, 23, 3, -2))
sketch3.addConstraint(Sketcher.Constraint("Symmetric", 10, 3, 24, 3, -2))
sketch3.addConstraint(Sketcher.Constraint("Symmetric", 11, 3, 25, 3, -2))
sketch3.addConstraint(Sketcher.Constraint("Symmetric", 47, 2, 54, 2, -2))
sketch3.addConstraint(Sketcher.Constraint("Symmetric", 46, 2, 55, 2, -2))
sketch3.addConstraint(Sketcher.Constraint("Parallel", 36, 38))
sketch3.addConstraint(Sketcher.Constraint("Perpendicular", 38, 39))
sketch3.addConstraint(Sketcher.Constraint("Parallel", 39, 44))
sketch3.addConstraint(Sketcher.Constraint("Parallel", 44, 46))
sketch3.addConstraint(Sketcher.Constraint("Perpendicular", 46, 47))
sketch3.addConstraint(Sketcher.Constraint("Parallel", 47, 52))
sketch3.addConstraint(Sketcher.Constraint("Parallel", 52, 54))
sketch3.addConstraint(Sketcher.Constraint("Parallel", 55, 60))
sketch3.addConstraint(Sketcher.Constraint("Parallel", 60, 62))
sketch3.addConstraint(Sketcher.Constraint("Horizontal", 8, 3, 9, 3))
sketch3.addConstraint(Sketcher.Constraint("Horizontal", 34, 2, 35, 1))
sketch3.addConstraint(Sketcher.Constraint("Horizontal", 31, 3, 38, 2))
sketch3.addConstraint(Sketcher.Constraint("Horizontal", 28, 3, 39, 2))
sketch3.addConstraint(Sketcher.Constraint("Horizontal", 48, 2, 49, 1))
sketch3.addConstraint(Sketcher.Constraint("Horizontal", 42, 2, 56, 2))
sketch3.addConstraint(Sketcher.Constraint("Horizontal", 43, 2, 57, 1))
sketch3.addConstraint(Sketcher.Constraint("Vertical", 1, 3, 2, 3))
sketch3.addConstraint(Sketcher.Constraint("Vertical", 14, 3, 38, 2))
sketch3.addConstraint(Sketcher.Constraint("Vertical", 13, 3, 39, 2))
sketch3.addConstraint(Sketcher.Constraint("Equal", 58, 32))
sketch3.addConstraint(Sketcher.Constraint("Equal", 51, 43))
sketch3.addConstraint(Sketcher.Constraint("Equal", 36, 38))
sketch3.addConstraint(Sketcher.Constraint("Diameter", 0, 4.0))
sketch3.addConstraint(Sketcher.Constraint("Radius", 35, 240.0))
sketch3.addConstraint(Sketcher.Constraint("DistanceX", 33, 1, 33, 2, 20.0))
sketch3.addConstraint(Sketcher.Constraint("DistanceX", 40, 1, 40, 2, 15.0))
sketch3.addConstraint(Sketcher.Constraint("Distance", 36, 15.0))
sketch3.addConstraint(Sketcher.Constraint("Distance", 39, 20.0))
sketch3.addConstraint(Sketcher.Constraint("DistanceX", 1, 3, -1, 1, 15.0))
sketch3.addConstraint(Sketcher.Constraint("DistanceY", 8, 3, -1, 1, 15.0))
sketch3.addConstraint(Sketcher.Constraint("DistanceY", 0, 3, -1, 1, 173.093783))
sketch3.addConstraint(Sketcher.Constraint("DistanceY", 1, 3, -1, 1, 229.791576))
sketch3.addConstraint(Sketcher.Constraint("DistanceY", 2, 3, -1, 1, 219.791576))
sketch3.addConstraint(Sketcher.Constraint("DistanceX", -1, 1, 5, 3, 144.809512))
sketch3.addConstraint(Sketcher.Constraint("DistanceX", -1, 1, 6, 3, 173.093783))
sketch3.addConstraint(Sketcher.Constraint("DistanceY", 7, 3, -1, 1, 144.809512))
sketch3.addConstraint(Sketcher.Constraint("DistanceX", -1, 1, 8, 3, 229.791576))
sketch3.addConstraint(Sketcher.Constraint("DistanceX", -1, 1, 9, 3, 219.791576))
pocket2 = body.newObject("PartDesign::Pocket", "Pocket001")
pocket2.Profile = sketch3
pocket2.Type = "ThroughAll"
doc.recompute()

chamfer2 = body.newObject("PartDesign::Chamfer", "Chamfer001")
chamfer2.Base = (pocket2, edges_at(pocket2, [
    (170, 0, -92),
    (170, 0, 88),
    (-170, 0, 92),
    (-170, 0, -88),
    (215, 0, 68),
    (215, 0, -68),
    (-215, 0, -72),
    (-215, 0, 72),
]))
chamfer2.Size = 2

doc.recompute()
